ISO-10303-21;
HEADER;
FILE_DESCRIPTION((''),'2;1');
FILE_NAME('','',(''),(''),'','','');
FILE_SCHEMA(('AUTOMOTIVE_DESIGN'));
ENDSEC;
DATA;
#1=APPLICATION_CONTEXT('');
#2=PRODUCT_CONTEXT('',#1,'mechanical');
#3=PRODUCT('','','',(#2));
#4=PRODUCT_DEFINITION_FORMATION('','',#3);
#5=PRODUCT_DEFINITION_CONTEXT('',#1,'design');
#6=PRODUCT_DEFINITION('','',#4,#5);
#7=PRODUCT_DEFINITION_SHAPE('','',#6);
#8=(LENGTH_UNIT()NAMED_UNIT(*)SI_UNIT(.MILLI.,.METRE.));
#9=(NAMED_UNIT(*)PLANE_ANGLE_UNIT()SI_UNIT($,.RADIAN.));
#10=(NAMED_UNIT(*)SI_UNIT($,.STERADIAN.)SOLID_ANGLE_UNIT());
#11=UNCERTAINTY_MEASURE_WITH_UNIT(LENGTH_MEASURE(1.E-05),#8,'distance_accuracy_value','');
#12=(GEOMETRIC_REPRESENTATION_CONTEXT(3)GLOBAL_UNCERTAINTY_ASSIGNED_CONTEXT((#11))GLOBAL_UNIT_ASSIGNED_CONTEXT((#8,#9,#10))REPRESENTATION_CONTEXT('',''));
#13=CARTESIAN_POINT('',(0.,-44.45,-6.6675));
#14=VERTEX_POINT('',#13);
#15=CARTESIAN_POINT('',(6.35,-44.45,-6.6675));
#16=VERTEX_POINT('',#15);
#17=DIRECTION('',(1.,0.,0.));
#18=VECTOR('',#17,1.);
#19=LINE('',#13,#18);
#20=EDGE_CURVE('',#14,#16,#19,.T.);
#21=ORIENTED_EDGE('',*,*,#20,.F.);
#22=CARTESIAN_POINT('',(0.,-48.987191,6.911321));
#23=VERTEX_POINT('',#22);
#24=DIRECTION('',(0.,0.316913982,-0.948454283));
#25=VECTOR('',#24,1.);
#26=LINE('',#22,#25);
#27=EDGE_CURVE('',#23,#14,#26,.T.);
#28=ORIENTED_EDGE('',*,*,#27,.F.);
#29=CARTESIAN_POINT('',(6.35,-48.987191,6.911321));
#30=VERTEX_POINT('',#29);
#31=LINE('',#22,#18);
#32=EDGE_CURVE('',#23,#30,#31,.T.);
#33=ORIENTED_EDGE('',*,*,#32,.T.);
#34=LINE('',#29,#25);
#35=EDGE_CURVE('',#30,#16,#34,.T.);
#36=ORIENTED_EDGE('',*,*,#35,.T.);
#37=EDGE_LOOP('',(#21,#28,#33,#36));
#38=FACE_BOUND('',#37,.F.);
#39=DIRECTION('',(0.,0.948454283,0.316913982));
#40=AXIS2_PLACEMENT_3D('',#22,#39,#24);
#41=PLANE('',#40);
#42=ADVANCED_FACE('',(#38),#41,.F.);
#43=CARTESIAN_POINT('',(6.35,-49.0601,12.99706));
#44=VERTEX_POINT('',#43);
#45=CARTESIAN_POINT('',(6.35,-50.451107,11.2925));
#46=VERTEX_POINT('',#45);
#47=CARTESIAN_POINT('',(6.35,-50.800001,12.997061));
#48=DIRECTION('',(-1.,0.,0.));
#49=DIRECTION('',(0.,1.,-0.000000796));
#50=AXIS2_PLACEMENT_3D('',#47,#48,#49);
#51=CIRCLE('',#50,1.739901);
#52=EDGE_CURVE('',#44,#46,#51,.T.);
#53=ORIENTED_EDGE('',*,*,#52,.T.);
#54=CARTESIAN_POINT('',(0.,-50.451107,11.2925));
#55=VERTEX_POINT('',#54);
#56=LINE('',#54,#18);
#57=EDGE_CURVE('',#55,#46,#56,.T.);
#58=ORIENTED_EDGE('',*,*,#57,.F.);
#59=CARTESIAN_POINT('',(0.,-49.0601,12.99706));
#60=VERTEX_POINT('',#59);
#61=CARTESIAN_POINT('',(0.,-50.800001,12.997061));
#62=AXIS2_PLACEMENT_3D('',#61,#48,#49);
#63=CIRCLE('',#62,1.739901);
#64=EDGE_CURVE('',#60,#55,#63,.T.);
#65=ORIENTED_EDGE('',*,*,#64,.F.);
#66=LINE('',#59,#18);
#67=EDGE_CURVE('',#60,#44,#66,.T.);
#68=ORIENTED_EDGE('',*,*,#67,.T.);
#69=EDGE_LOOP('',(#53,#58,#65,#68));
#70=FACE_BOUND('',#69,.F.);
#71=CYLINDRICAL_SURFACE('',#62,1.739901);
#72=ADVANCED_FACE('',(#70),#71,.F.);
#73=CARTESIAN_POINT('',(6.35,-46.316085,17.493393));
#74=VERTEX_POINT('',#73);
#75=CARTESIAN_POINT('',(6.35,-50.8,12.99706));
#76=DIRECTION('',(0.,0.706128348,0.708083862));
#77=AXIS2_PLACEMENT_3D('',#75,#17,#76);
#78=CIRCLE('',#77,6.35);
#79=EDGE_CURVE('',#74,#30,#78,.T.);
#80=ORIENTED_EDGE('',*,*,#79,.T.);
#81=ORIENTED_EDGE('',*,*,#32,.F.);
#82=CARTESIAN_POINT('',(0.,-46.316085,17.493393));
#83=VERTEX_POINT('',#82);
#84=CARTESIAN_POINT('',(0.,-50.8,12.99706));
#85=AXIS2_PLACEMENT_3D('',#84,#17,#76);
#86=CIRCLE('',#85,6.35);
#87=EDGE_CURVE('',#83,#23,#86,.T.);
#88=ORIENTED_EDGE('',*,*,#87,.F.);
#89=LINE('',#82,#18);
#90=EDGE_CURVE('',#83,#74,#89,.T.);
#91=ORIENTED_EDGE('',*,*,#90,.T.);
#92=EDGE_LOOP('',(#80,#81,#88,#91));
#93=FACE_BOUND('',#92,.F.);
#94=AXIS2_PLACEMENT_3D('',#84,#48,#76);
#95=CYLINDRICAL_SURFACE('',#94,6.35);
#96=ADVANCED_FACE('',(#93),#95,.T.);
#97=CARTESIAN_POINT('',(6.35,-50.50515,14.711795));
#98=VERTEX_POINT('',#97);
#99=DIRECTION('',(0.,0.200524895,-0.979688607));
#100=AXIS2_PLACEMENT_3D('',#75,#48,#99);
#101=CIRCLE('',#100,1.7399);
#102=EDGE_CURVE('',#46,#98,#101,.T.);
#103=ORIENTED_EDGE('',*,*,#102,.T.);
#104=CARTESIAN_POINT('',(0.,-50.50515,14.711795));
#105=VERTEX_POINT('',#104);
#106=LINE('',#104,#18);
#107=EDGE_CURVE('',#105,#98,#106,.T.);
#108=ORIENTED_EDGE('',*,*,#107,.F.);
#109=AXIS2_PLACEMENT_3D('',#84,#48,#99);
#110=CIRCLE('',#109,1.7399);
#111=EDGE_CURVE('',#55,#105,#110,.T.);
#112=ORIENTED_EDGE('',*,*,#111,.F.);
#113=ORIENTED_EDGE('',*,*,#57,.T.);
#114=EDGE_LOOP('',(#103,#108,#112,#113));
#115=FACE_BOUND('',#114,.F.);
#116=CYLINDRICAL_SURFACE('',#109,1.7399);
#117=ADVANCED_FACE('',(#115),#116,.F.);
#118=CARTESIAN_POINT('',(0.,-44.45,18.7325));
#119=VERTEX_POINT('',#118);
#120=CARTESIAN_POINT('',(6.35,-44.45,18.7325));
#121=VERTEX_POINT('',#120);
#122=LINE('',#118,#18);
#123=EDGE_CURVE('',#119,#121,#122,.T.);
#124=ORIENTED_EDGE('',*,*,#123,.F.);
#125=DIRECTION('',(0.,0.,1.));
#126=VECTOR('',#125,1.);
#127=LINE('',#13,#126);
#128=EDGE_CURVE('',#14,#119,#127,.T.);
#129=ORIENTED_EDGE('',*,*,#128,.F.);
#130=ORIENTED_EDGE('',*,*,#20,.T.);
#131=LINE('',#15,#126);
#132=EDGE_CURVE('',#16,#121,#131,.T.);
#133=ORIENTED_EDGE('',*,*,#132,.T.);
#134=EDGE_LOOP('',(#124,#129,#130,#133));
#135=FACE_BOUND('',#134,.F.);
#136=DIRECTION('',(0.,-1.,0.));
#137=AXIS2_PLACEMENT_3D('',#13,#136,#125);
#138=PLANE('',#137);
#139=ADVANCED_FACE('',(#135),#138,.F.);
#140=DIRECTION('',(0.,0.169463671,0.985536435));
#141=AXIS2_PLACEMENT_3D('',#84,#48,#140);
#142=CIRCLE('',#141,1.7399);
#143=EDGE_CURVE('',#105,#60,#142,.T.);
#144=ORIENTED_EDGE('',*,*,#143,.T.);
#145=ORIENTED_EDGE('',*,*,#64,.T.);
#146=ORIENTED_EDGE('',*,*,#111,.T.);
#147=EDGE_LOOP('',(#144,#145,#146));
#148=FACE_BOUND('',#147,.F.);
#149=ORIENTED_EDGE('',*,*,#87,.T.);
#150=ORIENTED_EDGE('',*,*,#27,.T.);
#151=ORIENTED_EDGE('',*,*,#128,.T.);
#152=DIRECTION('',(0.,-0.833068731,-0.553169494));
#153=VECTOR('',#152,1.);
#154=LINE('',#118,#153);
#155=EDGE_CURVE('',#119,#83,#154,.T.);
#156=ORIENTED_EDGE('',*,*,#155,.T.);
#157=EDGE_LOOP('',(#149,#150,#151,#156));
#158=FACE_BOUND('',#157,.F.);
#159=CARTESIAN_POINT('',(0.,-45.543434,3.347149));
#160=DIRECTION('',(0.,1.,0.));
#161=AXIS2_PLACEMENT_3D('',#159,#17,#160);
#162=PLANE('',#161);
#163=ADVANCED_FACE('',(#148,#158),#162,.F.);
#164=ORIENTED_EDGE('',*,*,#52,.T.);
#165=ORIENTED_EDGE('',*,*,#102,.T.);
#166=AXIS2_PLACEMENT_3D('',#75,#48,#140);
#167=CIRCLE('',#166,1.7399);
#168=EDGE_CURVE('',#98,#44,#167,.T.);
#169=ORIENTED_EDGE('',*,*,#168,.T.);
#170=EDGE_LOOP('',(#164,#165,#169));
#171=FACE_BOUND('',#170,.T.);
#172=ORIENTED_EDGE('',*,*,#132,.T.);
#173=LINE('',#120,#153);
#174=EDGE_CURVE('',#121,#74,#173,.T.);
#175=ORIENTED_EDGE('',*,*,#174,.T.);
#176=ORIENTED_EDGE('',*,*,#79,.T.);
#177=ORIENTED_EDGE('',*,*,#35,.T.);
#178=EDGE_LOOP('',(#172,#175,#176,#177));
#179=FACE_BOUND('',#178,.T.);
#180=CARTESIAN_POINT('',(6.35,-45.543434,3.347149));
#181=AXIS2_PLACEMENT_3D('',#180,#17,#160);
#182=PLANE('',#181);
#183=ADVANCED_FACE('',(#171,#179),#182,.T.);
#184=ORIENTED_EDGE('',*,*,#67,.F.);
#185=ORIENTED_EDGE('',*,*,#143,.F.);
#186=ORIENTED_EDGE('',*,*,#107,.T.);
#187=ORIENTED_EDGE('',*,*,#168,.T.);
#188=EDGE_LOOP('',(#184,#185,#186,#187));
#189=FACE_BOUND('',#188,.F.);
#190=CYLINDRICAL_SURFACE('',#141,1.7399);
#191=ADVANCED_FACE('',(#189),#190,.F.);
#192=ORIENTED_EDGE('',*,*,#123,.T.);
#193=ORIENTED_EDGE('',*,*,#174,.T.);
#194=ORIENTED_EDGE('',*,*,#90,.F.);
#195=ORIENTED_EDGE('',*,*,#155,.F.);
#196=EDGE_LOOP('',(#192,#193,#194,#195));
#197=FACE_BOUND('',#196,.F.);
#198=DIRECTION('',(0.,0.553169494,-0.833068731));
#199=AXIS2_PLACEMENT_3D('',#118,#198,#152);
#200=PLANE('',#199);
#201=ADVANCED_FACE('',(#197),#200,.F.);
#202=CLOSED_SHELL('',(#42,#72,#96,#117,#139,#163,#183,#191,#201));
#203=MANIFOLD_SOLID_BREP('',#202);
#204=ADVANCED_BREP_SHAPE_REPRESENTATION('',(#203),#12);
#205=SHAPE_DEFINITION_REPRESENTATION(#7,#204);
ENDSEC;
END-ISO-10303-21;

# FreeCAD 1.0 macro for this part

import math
import FreeCAD as App
import Part
import Sketcher

V = App.Vector
Q = App.Units.Quantity

doc = App.newDocument("Part")
body = doc.addObject("PartDesign::Body", "Body")

# Sketch on YZ plane
sketch1 = body.newObject("Sketcher::SketchObject", "Sketch")
sketch1.AttachmentSupport = (doc.getObject("YZ_Plane"), [""])
sketch1.MapMode = "FlatFace"
sketch1.addGeometry([
    Part.LineSegment(V(-49, 6.9, 0), V(-44.5, -6.7, 0)),  # 0
    Part.LineSegment(V(-44.5, -6.7, 0), V(-44.5, 18.7, 0)),  # 1
    Part.LineSegment(V(-44.5, 18.7, 0), V(-46.3, 17.5, 0)),  # 2
    Part.ArcOfCircle(Part.Circle(V(-50.8, 13, 0), V(0, 0, 1), 6.4), math.radians(45), math.radians(287)),  # 3
    Part.ArcOfCircle(Part.Circle(V(-50.8, 13, 0), V(0, 0, 1), 1.7), math.radians(-78), math.radians(0)),  # 4
    Part.ArcOfCircle(Part.Circle(V(-50.8, 13, 0), V(0, 0, 1), 1.7), math.radians(80), math.radians(282)),  # 5
    Part.ArcOfCircle(Part.Circle(V(-50.8, 13, 0), V(0, 0, 1), 1.7), math.radians(0), math.radians(80)),  # 6
], False)
sketch1.addConstraint([
    Sketcher.Constraint("Coincident", 0, 2, 1, 1),
    Sketcher.Constraint("Coincident", 1, 2, 2, 1),
    Sketcher.Constraint("Coincident", 2, 2, 3, 1),
    Sketcher.Constraint("Coincident", 3, 2, 0, 1),
    Sketcher.Constraint("Tangent", 4, 1, 5, 2),
    Sketcher.Constraint("Tangent", 5, 1, 6, 2),
    Sketcher.Constraint("Tangent", 6, 1, 4, 2),
    Sketcher.Constraint("Vertical", 1),
    Sketcher.Constraint("Coincident", 4, 3, 3, 3),
    Sketcher.Constraint("Horizontal", 5, 3, 6, 1),
    Sketcher.Constraint("DistanceY", 1, 1, 1, 2, Q("1 in")),
    Sketcher.Constraint("Radius", 3, Q("0.25 in")),
    Sketcher.Constraint("DistanceX", 3, 3, -1, 1, Q("2 in")),
    Sketcher.Constraint("Radius", 4, Q("0.0685001 in")),
    Sketcher.Constraint("DistanceX", 0, 2, -1, 1, Q("1.75 in")),
    Sketcher.Constraint("DistanceY", 0, 2, -1, 1, Q("0.2625 in")),
    Sketcher.Constraint("DistanceY", -1, 1, 4, 1, Q("11.2925 mm")),
    Sketcher.Constraint("Distance", 0, Q("14.31679 mm")),
    Sketcher.Constraint("DistanceY", -1, 1, 3, 3, Q("12.99706 mm")),
    Sketcher.Constraint("DistanceX", 5, 1, -1, 1, Q("50.50515 mm")),
    Sketcher.Constraint("DistanceY", 4, 3, 2, 2, Q("4.496332 mm")),
])
pad1 = body.newObject("PartDesign::Pad", "Pad")
pad1.Profile = sketch1
pad1.Length = Q("0.25 in")

doc.recompute()
